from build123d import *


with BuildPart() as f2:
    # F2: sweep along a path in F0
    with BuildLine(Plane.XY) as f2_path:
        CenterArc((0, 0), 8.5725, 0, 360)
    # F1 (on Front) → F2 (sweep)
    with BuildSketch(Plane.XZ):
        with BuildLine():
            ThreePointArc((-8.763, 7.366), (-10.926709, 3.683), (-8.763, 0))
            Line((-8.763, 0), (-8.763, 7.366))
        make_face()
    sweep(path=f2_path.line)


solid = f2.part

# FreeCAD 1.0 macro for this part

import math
import FreeCAD as App
import Part
import Sketcher
from FreeCAD import Vector
Q = App.Units.Quantity

doc = App.newDocument("Part")
body = doc.addObject("PartDesign::Body", "Body")

sketch1 = doc.addObject("Sketcher::SketchObject", "Sketch")
body.addObject(sketch1)
sketch1.AttachmentSupport = (doc.XZ_Plane, [""])
sketch1.MapMode = "FlatFace"
sketch1.addGeometry([
    Part.ArcOfCircle(Part.Circle(Vector(-6.7, 3.7, 0), Vector(0, 0, 1), 4.2), math.radians(119), math.radians(241)),
    Part.LineSegment(Vector(-8.8, 0, 0), Vector(-8.8, 7.4, 0)),
], False)
sketch1.addConstraint([
    Sketcher.Constraint("Coincident", 0, 1, 1, 2),
    Sketcher.Constraint("Coincident", 1, 1, 0, 2),
    Sketcher.Constraint("Vertical", 1),
    Sketcher.Constraint("PointOnObject", 1, 1, -1),
    Sketcher.Constraint("Radius", 0, Q("0.166 in")),
    Sketcher.Constraint("DistanceY", 1, 1, 1, 2, Q("0.29 in")),
    Sketcher.Constraint("DistanceX", 0, 1, -1, 1, Q("0.345 in")),
])

sketch2 = doc.addObject("Sketcher::SketchObject", "Sketch001")
body.addObject(sketch2)
sketch2.AttachmentSupport = (doc.XY_Plane, [""])
sketch2.MapMode = "FlatFace"
sketch2.addGeometry(Part.Circle(Vector(0, 0, 0), Vector(0, 0, 1), 9), False)
sketch2.addConstraint([
    Sketcher.Constraint("Coincident", 0, 3, -1, 1),
    Sketcher.Constraint("Diameter", 0, Q("0.675 in")),
])
doc.recompute()

additivepipe = doc.addObject("PartDesign::AdditivePipe", "AdditivePipe")
body.addObject(additivepipe)
additivepipe.Profile = sketch1
additivepipe.Spine = (sketch2, ["Edge1"])

doc.recompute()
